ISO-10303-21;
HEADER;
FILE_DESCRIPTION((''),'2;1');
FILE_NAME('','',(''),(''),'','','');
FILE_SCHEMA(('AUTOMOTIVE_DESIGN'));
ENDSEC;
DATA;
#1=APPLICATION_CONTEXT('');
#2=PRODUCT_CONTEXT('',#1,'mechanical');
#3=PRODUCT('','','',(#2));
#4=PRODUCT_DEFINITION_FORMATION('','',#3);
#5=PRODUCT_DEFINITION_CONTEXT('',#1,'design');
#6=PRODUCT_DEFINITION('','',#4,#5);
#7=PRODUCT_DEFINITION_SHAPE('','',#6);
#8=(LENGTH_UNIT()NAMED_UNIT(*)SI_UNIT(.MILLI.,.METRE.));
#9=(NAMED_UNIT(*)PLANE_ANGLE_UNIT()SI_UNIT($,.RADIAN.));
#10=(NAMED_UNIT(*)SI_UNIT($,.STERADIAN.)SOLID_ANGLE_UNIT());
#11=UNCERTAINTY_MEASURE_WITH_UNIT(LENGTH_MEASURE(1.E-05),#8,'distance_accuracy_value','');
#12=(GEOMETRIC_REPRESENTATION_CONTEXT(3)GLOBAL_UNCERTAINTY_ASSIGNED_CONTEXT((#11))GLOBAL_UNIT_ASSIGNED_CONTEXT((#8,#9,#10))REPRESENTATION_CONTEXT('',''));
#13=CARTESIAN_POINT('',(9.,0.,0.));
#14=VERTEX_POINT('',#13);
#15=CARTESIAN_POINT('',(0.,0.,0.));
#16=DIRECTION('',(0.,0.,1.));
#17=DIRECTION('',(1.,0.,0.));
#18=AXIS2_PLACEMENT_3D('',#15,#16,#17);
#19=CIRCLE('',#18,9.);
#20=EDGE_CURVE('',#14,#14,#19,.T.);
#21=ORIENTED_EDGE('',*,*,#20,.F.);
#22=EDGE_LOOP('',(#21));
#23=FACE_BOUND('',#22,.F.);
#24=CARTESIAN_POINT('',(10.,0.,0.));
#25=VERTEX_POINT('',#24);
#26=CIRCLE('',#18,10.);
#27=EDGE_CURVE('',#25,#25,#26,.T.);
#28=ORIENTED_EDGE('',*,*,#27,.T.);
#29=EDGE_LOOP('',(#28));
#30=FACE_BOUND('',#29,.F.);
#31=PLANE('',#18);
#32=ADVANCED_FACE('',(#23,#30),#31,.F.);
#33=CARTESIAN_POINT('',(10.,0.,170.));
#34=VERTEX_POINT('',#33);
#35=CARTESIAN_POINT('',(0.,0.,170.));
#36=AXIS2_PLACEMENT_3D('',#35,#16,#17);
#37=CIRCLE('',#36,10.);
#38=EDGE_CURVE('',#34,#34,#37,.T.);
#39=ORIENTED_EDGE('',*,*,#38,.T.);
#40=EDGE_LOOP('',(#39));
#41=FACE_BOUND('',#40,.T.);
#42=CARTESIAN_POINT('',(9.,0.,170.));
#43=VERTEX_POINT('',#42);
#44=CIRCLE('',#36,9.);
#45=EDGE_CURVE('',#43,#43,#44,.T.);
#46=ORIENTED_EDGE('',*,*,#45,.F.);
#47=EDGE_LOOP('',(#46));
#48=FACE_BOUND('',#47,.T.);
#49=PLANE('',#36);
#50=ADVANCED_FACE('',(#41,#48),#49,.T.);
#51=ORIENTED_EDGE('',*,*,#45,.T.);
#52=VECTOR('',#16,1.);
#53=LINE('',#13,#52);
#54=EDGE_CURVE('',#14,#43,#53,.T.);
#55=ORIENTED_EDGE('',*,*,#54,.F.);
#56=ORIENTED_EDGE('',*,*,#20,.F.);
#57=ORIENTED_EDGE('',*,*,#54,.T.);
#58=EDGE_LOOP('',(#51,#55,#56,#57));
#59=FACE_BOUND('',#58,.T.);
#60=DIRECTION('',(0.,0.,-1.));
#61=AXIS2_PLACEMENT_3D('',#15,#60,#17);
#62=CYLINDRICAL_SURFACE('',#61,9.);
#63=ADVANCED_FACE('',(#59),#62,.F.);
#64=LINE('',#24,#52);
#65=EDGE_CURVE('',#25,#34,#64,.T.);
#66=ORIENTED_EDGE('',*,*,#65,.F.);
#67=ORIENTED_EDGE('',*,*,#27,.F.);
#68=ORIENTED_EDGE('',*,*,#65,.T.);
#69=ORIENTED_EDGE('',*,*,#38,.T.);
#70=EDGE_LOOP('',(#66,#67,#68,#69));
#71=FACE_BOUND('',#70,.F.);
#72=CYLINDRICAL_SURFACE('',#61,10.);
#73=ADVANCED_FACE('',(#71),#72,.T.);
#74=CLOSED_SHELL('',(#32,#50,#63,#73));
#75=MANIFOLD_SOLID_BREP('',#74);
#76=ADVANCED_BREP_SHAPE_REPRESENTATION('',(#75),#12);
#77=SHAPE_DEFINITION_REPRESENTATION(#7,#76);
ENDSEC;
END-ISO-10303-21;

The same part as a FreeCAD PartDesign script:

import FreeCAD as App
import Part
import Sketcher

V = App.Vector

doc = App.newDocument("Part")
body = doc.addObject("PartDesign::Body", "Body")

# Sketch on XY plane
sketch1 = doc.addObject("Sketcher::SketchObject", "Sketch")
body.addObject(sketch1)
sketch1.AttachmentSupport = (doc.XY_Plane, [""])
sketch1.MapMode = "FlatFace"
sketch1.addGeometry([
    Part.Circle(V(0, 0, 0), V(0, 0, 1), 10),
    Part.Circle(V(0, 0, 0), V(0, 0, 1), 9),
], False)
sketch1.addConstraint([
    Sketcher.Constraint("Coincident", 0, 3, -1, 1),
    Sketcher.Constraint("Coincident", 1, 3, -1, 1),
    Sketcher.Constraint("Diameter", 0, 20.0),
    Sketcher.Constraint("Diameter", 1, 18.0),
])
pad1 = doc.addObject("PartDesign::Pad", "Pad")
body.addObject(pad1)
pad1.Profile = sketch1
pad1.Length = 170

doc.recompute()
